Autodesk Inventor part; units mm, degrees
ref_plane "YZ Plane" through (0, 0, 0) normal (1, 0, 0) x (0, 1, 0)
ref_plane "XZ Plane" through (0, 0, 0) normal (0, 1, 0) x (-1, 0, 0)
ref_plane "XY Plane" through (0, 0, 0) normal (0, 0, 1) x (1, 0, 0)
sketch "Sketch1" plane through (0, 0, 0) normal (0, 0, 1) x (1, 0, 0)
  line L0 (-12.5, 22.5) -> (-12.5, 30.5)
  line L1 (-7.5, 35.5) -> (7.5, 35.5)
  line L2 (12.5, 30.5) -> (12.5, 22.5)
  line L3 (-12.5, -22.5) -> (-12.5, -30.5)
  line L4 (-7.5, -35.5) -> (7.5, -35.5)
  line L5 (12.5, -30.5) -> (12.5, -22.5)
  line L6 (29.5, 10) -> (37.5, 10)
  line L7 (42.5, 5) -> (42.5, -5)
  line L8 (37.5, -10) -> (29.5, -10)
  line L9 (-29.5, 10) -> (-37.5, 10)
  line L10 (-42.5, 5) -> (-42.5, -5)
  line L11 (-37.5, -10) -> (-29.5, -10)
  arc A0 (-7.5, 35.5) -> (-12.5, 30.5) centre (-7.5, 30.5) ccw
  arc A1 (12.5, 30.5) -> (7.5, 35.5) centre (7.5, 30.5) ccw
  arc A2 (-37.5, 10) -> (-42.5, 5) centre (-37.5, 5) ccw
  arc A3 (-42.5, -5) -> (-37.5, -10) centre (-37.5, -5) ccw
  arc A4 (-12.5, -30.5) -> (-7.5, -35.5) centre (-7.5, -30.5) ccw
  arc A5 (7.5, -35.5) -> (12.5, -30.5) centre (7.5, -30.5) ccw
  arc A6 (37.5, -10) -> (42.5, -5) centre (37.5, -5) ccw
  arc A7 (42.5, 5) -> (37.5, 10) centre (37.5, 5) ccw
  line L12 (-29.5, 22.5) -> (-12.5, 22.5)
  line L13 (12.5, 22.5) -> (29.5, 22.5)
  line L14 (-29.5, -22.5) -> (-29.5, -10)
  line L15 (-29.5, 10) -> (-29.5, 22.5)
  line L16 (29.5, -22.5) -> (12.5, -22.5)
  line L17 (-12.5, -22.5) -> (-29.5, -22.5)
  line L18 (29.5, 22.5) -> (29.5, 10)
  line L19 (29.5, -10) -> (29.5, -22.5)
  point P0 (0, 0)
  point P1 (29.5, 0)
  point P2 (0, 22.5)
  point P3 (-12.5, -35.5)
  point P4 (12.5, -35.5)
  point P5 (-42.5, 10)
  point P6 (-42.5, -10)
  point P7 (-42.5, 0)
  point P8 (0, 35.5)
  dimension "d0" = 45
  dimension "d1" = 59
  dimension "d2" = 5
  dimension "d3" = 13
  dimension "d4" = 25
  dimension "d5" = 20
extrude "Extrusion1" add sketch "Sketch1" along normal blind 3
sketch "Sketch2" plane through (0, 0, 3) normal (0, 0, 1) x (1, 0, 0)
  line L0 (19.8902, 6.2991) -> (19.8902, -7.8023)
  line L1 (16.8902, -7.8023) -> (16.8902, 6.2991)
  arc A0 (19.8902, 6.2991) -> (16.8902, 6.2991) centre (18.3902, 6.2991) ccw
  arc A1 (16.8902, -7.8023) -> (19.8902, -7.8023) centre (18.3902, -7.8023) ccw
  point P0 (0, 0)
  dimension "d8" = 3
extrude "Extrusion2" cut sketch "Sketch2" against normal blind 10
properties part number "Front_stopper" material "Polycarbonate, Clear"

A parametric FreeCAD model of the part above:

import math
import FreeCAD as App
import Part
import Sketcher
Q = App.Units.Quantity

doc = App.newDocument("Part")
body = doc.addObject("PartDesign::Body", "Body")

# Sketch on XY plane
sketch1 = body.newObject("Sketcher::SketchObject", "Sketch")
sketch1.AttachmentSupport = (doc.getObject("XY_Plane"), [""])
sketch1.MapMode = "FlatFace"
sketch1.addGeometry(Part.LineSegment(App.Vector(-12, 30, 0), App.Vector(-12, 22, 0)), False)
sketch1.addGeometry(Part.LineSegment(App.Vector(-12, 22, 0), App.Vector(-30, 22, 0)), False)
sketch1.addGeometry(Part.LineSegment(App.Vector(-30, 22, 0), App.Vector(-30, 10, 0)), False)
sketch1.addGeometry(Part.LineSegment(App.Vector(-30, 10, 0), App.Vector(-38, 10, 0)), False)
sketch1.addGeometry(Part.ArcOfCircle(Part.Circle(App.Vector(-38, 5, 0), App.Vector(0, 0, 1), 5), math.radians(90), math.radians(180)), False)
sketch1.addGeometry(Part.LineSegment(App.Vector(-42, 5, 0), App.Vector(-42, -5, 0)), False)
sketch1.addGeometry(Part.ArcOfCircle(Part.Circle(App.Vector(-38, -5, 0), App.Vector(0, 0, 1), 5), math.radians(180), math.radians(270)), False)
sketch1.addGeometry(Part.LineSegment(App.Vector(-38, -10, 0), App.Vector(-30, -10, 0)), False)
sketch1.addGeometry(Part.LineSegment(App.Vector(-30, -10, 0), App.Vector(-30, -22, 0)), False)
sketch1.addGeometry(Part.LineSegment(App.Vector(-30, -22, 0), App.Vector(-12, -22, 0)), False)
sketch1.addGeometry(Part.LineSegment(App.Vector(-12, -22, 0), App.Vector(-12, -30, 0)), False)
sketch1.addGeometry(Part.ArcOfCircle(Part.Circle(App.Vector(-8, -30, 0), App.Vector(0, 0, 1), 5), math.radians(180), math.radians(270)), False)
sketch1.addGeometry(Part.LineSegment(App.Vector(-8, -36, 0), App.Vector(8, -36, 0)), False)
sketch1.addGeometry(Part.ArcOfCircle(Part.Circle(App.Vector(8, -30, 0), App.Vector(0, 0, 1), 5), math.radians(-90), math.radians(0)), False)
sketch1.addGeometry(Part.LineSegment(App.Vector(12, -30, 0), App.Vector(12, -22, 0)), False)
sketch1.addGeometry(Part.LineSegment(App.Vector(12, -22, 0), App.Vector(30, -22, 0)), False)
sketch1.addGeometry(Part.LineSegment(App.Vector(30, -22, 0), App.Vector(30, -10, 0)), False)
sketch1.addGeometry(Part.LineSegment(App.Vector(30, -10, 0), App.Vector(38, -10, 0)), False)
sketch1.addGeometry(Part.ArcOfCircle(Part.Circle(App.Vector(38, -5, 0), App.Vector(0, 0, 1), 5), math.radians(-90), math.radians(0)), False)
sketch1.addGeometry(Part.LineSegment(App.Vector(42, -5, 0), App.Vector(42, 5, 0)), False)
sketch1.addGeometry(Part.ArcOfCircle(Part.Circle(App.Vector(38, 5, 0), App.Vector(0, 0, 1), 5), math.radians(0), math.radians(90)), False)
sketch1.addGeometry(Part.LineSegment(App.Vector(38, 10, 0), App.Vector(30, 10, 0)), False)
sketch1.addGeometry(Part.LineSegment(App.Vector(30, 10, 0), App.Vector(30, 22, 0)), False)
sketch1.addGeometry(Part.LineSegment(App.Vector(30, 22, 0), App.Vector(12, 22, 0)), False)
sketch1.addGeometry(Part.LineSegment(App.Vector(12, 22, 0), App.Vector(12, 30, 0)), False)
sketch1.addGeometry(Part.ArcOfCircle(Part.Circle(App.Vector(8, 30, 0), App.Vector(0, 0, 1), 5), math.radians(0), math.radians(90)), False)
sketch1.addGeometry(Part.LineSegment(App.Vector(8, 36, 0), App.Vector(-8, 36, 0)), False)
sketch1.addGeometry(Part.ArcOfCircle(Part.Circle(App.Vector(-8, 30, 0), App.Vector(0, 0, 1), 5), math.radians(90), math.radians(180)), False)
sketch1.addConstraint(Sketcher.Constraint("Coincident", 0, 2, 1, 1))
sketch1.addConstraint(Sketcher.Constraint("Coincident", 1, 2, 2, 1))
sketch1.addConstraint(Sketcher.Constraint("Coincident", 2, 2, 3, 1))
sketch1.addConstraint(Sketcher.Constraint("Tangent", 3, 2, 4, 1))
sketch1.addConstraint(Sketcher.Constraint("Tangent", 4, 2, 5, 1))
sketch1.addConstraint(Sketcher.Constraint("Tangent", 5, 2, 6, 1))
sketch1.addConstraint(Sketcher.Constraint("Tangent", 6, 2, 7, 1))
sketch1.addConstraint(Sketcher.Constraint("Coincident", 7, 2, 8, 1))
sketch1.addConstraint(Sketcher.Constraint("Coincident", 8, 2, 9, 1))
sketch1.addConstraint(Sketcher.Constraint("Coincident", 9, 2, 10, 1))
sketch1.addConstraint(Sketcher.Constraint("Tangent", 10, 2, 11, 1))
sketch1.addConstraint(Sketcher.Constraint("Tangent", 11, 2, 12, 1))
sketch1.addConstraint(Sketcher.Constraint("Tangent", 12, 2, 13, 1))
sketch1.addConstraint(Sketcher.Constraint("Tangent", 13, 2, 14, 1))
sketch1.addConstraint(Sketcher.Constraint("Coincident", 14, 2, 15, 1))
sketch1.addConstraint(Sketcher.Constraint("Coincident", 15, 2, 16, 1))
sketch1.addConstraint(Sketcher.Constraint("Coincident", 16, 2, 17, 1))
sketch1.addConstraint(Sketcher.Constraint("Tangent", 17, 2, 18, 1))
sketch1.addConstraint(Sketcher.Constraint("Tangent", 18, 2, 19, 1))
sketch1.addConstraint(Sketcher.Constraint("Tangent", 19, 2, 20, 1))
sketch1.addConstraint(Sketcher.Constraint("Tangent", 20, 2, 21, 1))
sketch1.addConstraint(Sketcher.Constraint("Coincident", 21, 2, 22, 1))
sketch1.addConstraint(Sketcher.Constraint("Coincident", 22, 2, 23, 1))
sketch1.addConstraint(Sketcher.Constraint("Coincident", 23, 2, 24, 1))
sketch1.addConstraint(Sketcher.Constraint("Tangent", 24, 2, 25, 1))
sketch1.addConstraint(Sketcher.Constraint("Tangent", 25, 2, 26, 1))
sketch1.addConstraint(Sketcher.Constraint("Tangent", 26, 2, 27, 1))
sketch1.addConstraint(Sketcher.Constraint("Tangent", 27, 2, 0, 1))
sketch1.addConstraint(Sketcher.Constraint("Vertical", 0))
sketch1.addConstraint(Sketcher.Constraint("Horizontal", 1))
sketch1.addConstraint(Sketcher.Constraint("Vertical", 2))
sketch1.addConstraint(Sketcher.Constraint("Horizontal", 3))
sketch1.addConstraint(Sketcher.Constraint("Vertical", 5))
sketch1.addConstraint(Sketcher.Constraint("Horizontal", 7))
sketch1.addConstraint(Sketcher.Constraint("Vertical", 8))
sketch1.addConstraint(Sketcher.Constraint("Horizontal", 9))
sketch1.addConstraint(Sketcher.Constraint("Vertical", 10))
sketch1.addConstraint(Sketcher.Constraint("Horizontal", 12))
sketch1.addConstraint(Sketcher.Constraint("Vertical", 14))
sketch1.addConstraint(Sketcher.Constraint("Horizontal", 15))
sketch1.addConstraint(Sketcher.Constraint("Vertical", 16))
sketch1.addConstraint(Sketcher.Constraint("Horizontal", 17))
sketch1.addConstraint(Sketcher.Constraint("Vertical", 19))
sketch1.addConstraint(Sketcher.Constraint("Horizontal", 21))
sketch1.addConstraint(Sketcher.Constraint("Vertical", 22))
sketch1.addConstraint(Sketcher.Constraint("Horizontal", 23))
sketch1.addConstraint(Sketcher.Constraint("Vertical", 24))
sketch1.addConstraint(Sketcher.Constraint("Horizontal", 26))
sketch1.addConstraint(Sketcher.Constraint("Equal", 4, 6))
sketch1.addConstraint(Sketcher.Constraint("Equal", 6, 11))
sketch1.addConstraint(Sketcher.Constraint("Equal", 11, 13))
sketch1.addConstraint(Sketcher.Constraint("Equal", 13, 18))
sketch1.addConstraint(Sketcher.Constraint("Equal", 18, 20))
sketch1.addConstraint(Sketcher.Constraint("Equal", 20, 25))
sketch1.addConstraint(Sketcher.Constraint("Equal", 25, 27))
sketch1.addConstraint(Sketcher.Constraint("Symmetric", 4, 3, 18, 3, -1, 1))
sketch1.addConstraint(Sketcher.Constraint("Symmetric", 11, 3, 25, 3, -1, 1))
sketch1.addConstraint(Sketcher.Constraint("Symmetric", 0, 2, 14, 2, -1, 1))
sketch1.addConstraint(Sketcher.Constraint("Symmetric", 7, 2, 21, 2, -1, 1))
sketch1.addConstraint(Sketcher.Constraint("Symmetric", 9, 2, 14, 2, -2))
sketch1.addConstraint(Sketcher.Constraint("Symmetric", 7, 2, 16, 2, -2))
sketch1.addConstraint(Sketcher.Constraint("Symmetric", 1, 2, 22, 2, -2))
sketch1.addConstraint(Sketcher.Constraint("Equal", 21, 0))
sketch1.addConstraint(Sketcher.Constraint("Radius", 4, Q("5 mm")))
sketch1.addConstraint(Sketcher.Constraint("DistanceY", -1, 1, 4, 3, Q("5 mm")))
sketch1.addConstraint(Sketcher.Constraint("DistanceX", 6, 3, 13, 3, Q("45 mm")))
sketch1.addConstraint(Sketcher.Constraint("DistanceX", 0, 2, 25, 3, Q("20 mm")))
sketch1.addConstraint(Sketcher.Constraint("DistanceX", 4, 2, 2, 2, Q("13 mm")))
sketch1.addConstraint(Sketcher.Constraint("DistanceY", 2, 2, 2, 1, Q("12.5 mm")))
pad1 = body.newObject("PartDesign::Pad", "Pad")
pad1.Profile = sketch1
pad1.Length = 3

# Sketch on XY plane
sketch2 = body.newObject("Sketcher::SketchObject", "Sketch001")
sketch2.AttachmentSupport = (doc.getObject("XY_Plane"), [""])
sketch2.MapMode = "FlatFace"
sketch2.AttachmentOffset = App.Placement(App.Vector(0, 0, 3), App.Rotation())
sketch2.addGeometry(Part.LineSegment(App.Vector(19.9, -7.8, 0), App.Vector(19.9, 6.3, 0)), False)
sketch2.addGeometry(Part.ArcOfCircle(Part.Circle(App.Vector(18.4, 6.3, 0), App.Vector(0, 0, 1), 1.5), math.radians(0), math.radians(180)), False)
sketch2.addGeometry(Part.LineSegment(App.Vector(16.9, 6.3, 0), App.Vector(16.9, -7.8, 0)), False)
sketch2.addGeometry(Part.ArcOfCircle(Part.Circle(App.Vector(18.4, -7.8, 0), App.Vector(0, 0, 1), 1.5), math.radians(180), math.radians(360)), False)
sketch2.addConstraint(Sketcher.Constraint("Tangent", 0, 2, 1, 1))
sketch2.addConstraint(Sketcher.Constraint("Tangent", 1, 2, 2, 1))
sketch2.addConstraint(Sketcher.Constraint("Tangent", 2, 2, 3, 1))
sketch2.addConstraint(Sketcher.Constraint("Tangent", 3, 2, 0, 1))
sketch2.addConstraint(Sketcher.Constraint("Vertical", 0))
sketch2.addConstraint(Sketcher.Constraint("Vertical", 2))
sketch2.addConstraint(Sketcher.Constraint("Radius", 1, Q("1.5 mm")))
sketch2.addConstraint(Sketcher.Constraint("DistanceY", 0, 1, 0, 2, Q("14.1014 mm")))
sketch2.addConstraint(Sketcher.Constraint("DistanceY", -1, 1, 1, 3, Q("6.299 mm")))
sketch2.addConstraint(Sketcher.Constraint("DistanceX", -1, 1, 1, 3, Q("18.3902 mm")))
pocket1 = body.newObject("PartDesign::Pocket", "Pocket")
pocket1.Profile = sketch2
pocket1.Length = 10

doc.recompute()
